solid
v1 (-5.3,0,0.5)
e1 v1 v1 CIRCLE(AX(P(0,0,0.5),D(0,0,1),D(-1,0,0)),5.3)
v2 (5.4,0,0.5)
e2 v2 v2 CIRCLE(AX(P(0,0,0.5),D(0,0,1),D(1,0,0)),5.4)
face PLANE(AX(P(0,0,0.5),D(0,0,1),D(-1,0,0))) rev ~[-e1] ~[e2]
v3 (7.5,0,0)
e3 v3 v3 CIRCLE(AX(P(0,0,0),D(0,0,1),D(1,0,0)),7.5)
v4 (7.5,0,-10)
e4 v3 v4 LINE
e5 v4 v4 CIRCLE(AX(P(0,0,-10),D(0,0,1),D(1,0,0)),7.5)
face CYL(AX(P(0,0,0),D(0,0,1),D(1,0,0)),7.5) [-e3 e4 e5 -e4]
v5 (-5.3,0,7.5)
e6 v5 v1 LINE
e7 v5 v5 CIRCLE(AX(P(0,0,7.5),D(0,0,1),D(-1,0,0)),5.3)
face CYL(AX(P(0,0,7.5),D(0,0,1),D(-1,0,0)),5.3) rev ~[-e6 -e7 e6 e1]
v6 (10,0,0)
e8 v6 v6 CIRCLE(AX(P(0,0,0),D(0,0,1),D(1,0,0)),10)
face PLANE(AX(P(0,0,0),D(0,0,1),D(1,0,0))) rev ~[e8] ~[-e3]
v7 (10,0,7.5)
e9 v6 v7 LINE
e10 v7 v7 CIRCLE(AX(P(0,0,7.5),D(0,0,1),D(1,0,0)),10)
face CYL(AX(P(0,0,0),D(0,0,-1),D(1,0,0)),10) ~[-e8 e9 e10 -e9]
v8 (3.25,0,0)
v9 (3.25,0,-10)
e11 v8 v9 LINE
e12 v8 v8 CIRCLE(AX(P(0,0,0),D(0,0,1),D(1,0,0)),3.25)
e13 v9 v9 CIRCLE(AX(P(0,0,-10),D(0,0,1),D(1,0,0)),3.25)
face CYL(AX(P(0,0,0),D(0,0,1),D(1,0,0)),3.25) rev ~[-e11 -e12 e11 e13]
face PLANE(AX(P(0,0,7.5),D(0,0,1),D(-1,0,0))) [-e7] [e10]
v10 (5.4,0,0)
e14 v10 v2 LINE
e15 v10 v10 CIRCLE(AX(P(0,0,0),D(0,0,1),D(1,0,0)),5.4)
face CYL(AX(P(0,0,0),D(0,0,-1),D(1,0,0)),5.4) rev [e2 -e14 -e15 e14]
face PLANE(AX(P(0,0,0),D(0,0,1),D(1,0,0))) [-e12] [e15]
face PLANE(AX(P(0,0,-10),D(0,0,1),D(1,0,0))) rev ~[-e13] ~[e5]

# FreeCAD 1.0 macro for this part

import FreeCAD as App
import Part
import Sketcher

doc = App.newDocument("Part")
body = doc.addObject("PartDesign::Body", "Body")

# Sketch on XY plane
sketch1 = body.newObject("Sketcher::SketchObject", "Sketch")
sketch1.AttachmentSupport = (doc.getObject("XY_Plane"), [""])
sketch1.MapMode = "FlatFace"
sketch1.addGeometry([
    Part.Circle(App.Vector(0, 0, 0), App.Vector(0, 0, 1), 10),
    Part.Circle(App.Vector(0, 0, 0), App.Vector(0, 0, 1), 5),
], False)
sketch1.addConstraint([
    Sketcher.Constraint("Coincident", 0, 3, -1, 1),
    Sketcher.Constraint("Coincident", 1, 3, -1, 1),
    Sketcher.Constraint("Diameter", 0, 20.0),
    Sketcher.Constraint("Diameter", 1, 10.0),
])
pad1 = body.newObject("PartDesign::Pad", "Pad")
pad1.Profile = sketch1
pad1.Length = 7.5

# Sketch on XY plane
sketch2 = body.newObject("Sketcher::SketchObject", "Sketch001")
sketch2.AttachmentSupport = (doc.getObject("XY_Plane"), [""])
sketch2.MapMode = "FlatFace"
sketch2.addGeometry([
    Part.Circle(App.Vector(0, 0, 0), App.Vector(0, 0, 1), 7.5),
    Part.Circle(App.Vector(0, 0, 0), App.Vector(0, 0, 1), 3),
], False)
sketch2.addConstraint([
    Sketcher.Constraint("Coincident", 0, 3, -1, 1),
    Sketcher.Constraint("Coincident", 1, 3, -1, 1),
    Sketcher.Constraint("Diameter", 0, 15.0),
    Sketcher.Constraint("Diameter", 1, 6.1),
])
pad2 = body.newObject("PartDesign::Pad", "Pad001")
pad2.Profile = sketch2
pad2.Length = 10
pad2.Reversed = True

# Sketch on XY plane
sketch3 = body.newObject("Sketcher::SketchObject", "Sketch002")
sketch3.AttachmentSupport = (doc.getObject("XY_Plane"), [""])
sketch3.MapMode = "FlatFace"
sketch3.addGeometry(Part.Circle(App.Vector(0, 0, 0), App.Vector(0, 0, 1), 6), False)
sketch3.addConstraint([
    Sketcher.Constraint("Coincident", 0, 3, -1, 1),
    Sketcher.Constraint("Diameter", 0, 12.0),
])
pocket1 = body.newObject("PartDesign::Pocket", "Pocket")
pocket1.Profile = sketch3
pocket1.Length = 8
pocket1.Reversed = True

# Sketch on XY plane
sketch4 = body.newObject("Sketcher::SketchObject", "Sketch003")
sketch4.AttachmentSupport = (doc.getObject("XY_Plane"), [""])
sketch4.MapMode = "FlatFace"
sketch4.addGeometry(Part.Circle(App.Vector(0, 0, 0), App.Vector(0, 0, 1), 3.2), False)
sketch4.addConstraint([
    Sketcher.Constraint("Coincident", 0, 3, -1, 1),
    Sketcher.Constraint("Diameter", 0, 6.5),
])
pocket2 = body.newObject("PartDesign::Pocket", "Pocket001")
pocket2.Profile = sketch4
pocket2.Length = 10

# Sketch on XY plane
sketch5 = body.newObject("Sketcher::SketchObject", "Sketch004")
sketch5.AttachmentSupport = (doc.getObject("XY_Plane"), [""])
sketch5.MapMode = "FlatFace"
sketch5.addGeometry([
    Part.Circle(App.Vector(0, 0, 0), App.Vector(0, 0, 1), 6),
    Part.Circle(App.Vector(0, 0, 0), App.Vector(0, 0, 1), 6),
], False)
sketch5.addConstraint([
    Sketcher.Constraint("Coincident", 0, 3, -1, 1),
    Sketcher.Constraint("Coincident", 1, 3, -1, 1),
    Sketcher.Constraint("Diameter", 1, 11.5),
    Sketcher.Constraint("Diameter", 0, 12.0),
])
pad3 = body.newObject("PartDesign::Pad", "Pad002")
pad3.Profile = sketch5
pad3.Length = 7.5

# Sketch on XY plane
sketch6 = body.newObject("Sketcher::SketchObject", "Sketch005")
sketch6.AttachmentSupport = (doc.getObject("XY_Plane"), [""])
sketch6.MapMode = "FlatFace"
sketch6.addGeometry([
    Part.Circle(App.Vector(0, 0, 0), App.Vector(0, 0, 1), 6),
    Part.Circle(App.Vector(0, 0, 0), App.Vector(0, 0, 1), 5),
], False)
sketch6.addConstraint([
    Sketcher.Constraint("Coincident", 0, 3, -1, 1),
    Sketcher.Constraint("Coincident", 1, 3, -1, 1),
    Sketcher.Constraint("Diameter", 0, 11.5),
    Sketcher.Constraint("Diameter", 1, 10.8),
])
pad4 = body.newObject("PartDesign::Pad", "Pad003")
pad4.Profile = sketch6
pad4.Length = 7.5

# Sketch on XY plane
sketch7 = body.newObject("Sketcher::SketchObject", "Sketch006")
sketch7.AttachmentSupport = (doc.getObject("XY_Plane"), [""])
sketch7.MapMode = "FlatFace"
sketch7.AttachmentOffset = App.Placement(App.Vector(0, 0, 7.5), App.Rotation())
sketch7.addGeometry(Part.Circle(App.Vector(0, 0, 0), App.Vector(0, 0, 1), 5), False)
sketch7.addConstraint([
    Sketcher.Constraint("Coincident", 0, 3, -1, 1),
    Sketcher.Constraint("Diameter", 0, 10.8),
])
pad5 = body.newObject("PartDesign::Pad", "Pad004")
pad5.Profile = sketch7
pad5.Length = 7
pad5.Reversed = True

# Sketch on XY plane
sketch8 = body.newObject("Sketcher::SketchObject", "Sketch007")
sketch8.AttachmentSupport = (doc.getObject("XY_Plane"), [""])
sketch8.MapMode = "FlatFace"
sketch8.AttachmentOffset = App.Placement(App.Vector(0, 0, 7.5), App.Rotation())
sketch8.addGeometry(Part.Circle(App.Vector(0, 0, 0), App.Vector(0, 0, 1), 5), False)
sketch8.addConstraint([
    Sketcher.Constraint("Coincident", 0, 3, -1, 1),
    Sketcher.Constraint("Diameter", 0, 10.6),
])
pocket3 = body.newObject("PartDesign::Pocket", "Pocket002")
pocket3.Profile = sketch8
pocket3.Length = 7

doc.recompute()
